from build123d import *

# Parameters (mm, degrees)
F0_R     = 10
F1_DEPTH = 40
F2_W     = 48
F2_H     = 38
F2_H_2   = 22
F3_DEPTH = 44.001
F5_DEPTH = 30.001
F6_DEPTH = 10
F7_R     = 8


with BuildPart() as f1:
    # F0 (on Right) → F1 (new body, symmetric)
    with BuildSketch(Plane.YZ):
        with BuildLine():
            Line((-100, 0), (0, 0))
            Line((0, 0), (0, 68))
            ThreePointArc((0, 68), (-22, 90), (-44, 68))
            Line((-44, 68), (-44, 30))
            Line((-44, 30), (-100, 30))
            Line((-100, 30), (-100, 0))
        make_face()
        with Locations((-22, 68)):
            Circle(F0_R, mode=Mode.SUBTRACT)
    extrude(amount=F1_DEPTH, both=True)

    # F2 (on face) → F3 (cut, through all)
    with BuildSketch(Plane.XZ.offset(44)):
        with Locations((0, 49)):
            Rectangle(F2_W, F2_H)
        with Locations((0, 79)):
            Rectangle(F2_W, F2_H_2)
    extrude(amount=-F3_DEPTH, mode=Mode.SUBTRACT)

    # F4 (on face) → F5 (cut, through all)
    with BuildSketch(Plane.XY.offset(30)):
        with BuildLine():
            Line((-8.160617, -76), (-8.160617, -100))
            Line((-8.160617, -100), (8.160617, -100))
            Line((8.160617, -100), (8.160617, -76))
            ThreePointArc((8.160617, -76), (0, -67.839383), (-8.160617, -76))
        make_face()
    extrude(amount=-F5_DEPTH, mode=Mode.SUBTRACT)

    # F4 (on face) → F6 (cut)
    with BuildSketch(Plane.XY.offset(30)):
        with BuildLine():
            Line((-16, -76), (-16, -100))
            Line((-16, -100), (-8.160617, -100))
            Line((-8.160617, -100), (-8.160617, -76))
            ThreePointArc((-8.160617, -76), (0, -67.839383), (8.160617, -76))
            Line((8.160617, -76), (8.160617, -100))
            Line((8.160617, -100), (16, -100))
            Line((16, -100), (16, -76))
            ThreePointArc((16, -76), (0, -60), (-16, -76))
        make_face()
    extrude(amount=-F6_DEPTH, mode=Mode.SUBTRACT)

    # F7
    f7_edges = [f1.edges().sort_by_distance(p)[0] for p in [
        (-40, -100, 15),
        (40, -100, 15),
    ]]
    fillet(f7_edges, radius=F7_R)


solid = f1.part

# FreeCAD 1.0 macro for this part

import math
import FreeCAD as App
import Part
import Sketcher

V = App.Vector


def edges_at(feature, points):
    """Names of the edges that pass closest to the given points."""
    edges = feature.Shape.Edges
    near = lambda p: min(range(len(edges)), key=lambda i: edges[i].distToShape(Part.Vertex(*p))[0])
    return sorted({f"Edge{near(p) + 1}" for p in points})

doc = App.newDocument("Part")
params = doc.addObject("Spreadsheet::Sheet", "Params")
for row, (alias, value) in enumerate([
    ("sketch1_diameter", "20 mm"),
    ("sketch1_radius", "22 mm"),
    ("sketch1_width", "100 mm"),
    ("sketch1_height", "68 mm"),
    ("sketch1_height2", "38 mm"),
    ("pad1_length", "80 mm"),
    ("sketch2_width", "48 mm"),
    ("sketch2_height", "60 mm"),
    ("sketch3_height", "24 mm"),
    ("sketch4_radius", "16 mm"),
    ("sketch4_height", "24 mm"),
    ("pocket3_length", "10 mm"),
    ("fillet_radius", "8 mm"),
], start=1):
    params.set(f"A{row}", alias)
    params.set(f"B{row}", "=" + value)
    params.setAlias(f"B{row}", alias)

body = doc.addObject("PartDesign::Body", "Body")

# Sketch on YZ plane
sketch1 = doc.addObject("Sketcher::SketchObject", "Sketch")
body.addObject(sketch1)
sketch1.AttachmentSupport = (doc.YZ_Plane, [""])
sketch1.MapMode = "FlatFace"
sketch1.addGeometry([
    Part.LineSegment(V(-100, 0, 0), V(0, 0, 0)),  # 0
    Part.LineSegment(V(0, 0, 0), V(0, 68, 0)),  # 1
    Part.ArcOfCircle(Part.Circle(V(-22, 68, 0), V(0, 0, 1), 22), math.radians(0), math.radians(180)),  # 2
    Part.LineSegment(V(-44, 68, 0), V(-44, 30, 0)),  # 3
    Part.LineSegment(V(-44, 30, 0), V(-100, 30, 0)),  # 4
    Part.LineSegment(V(-100, 30, 0), V(-100, 0, 0)),  # 5
    Part.Circle(V(-22, 68, 0), V(0, 0, 1), 10),  # 6
], False)
sketch1.addConstraint([
    Sketcher.Constraint("Coincident", 0, 2, 1, 1),
    Sketcher.Constraint("Tangent", 1, 2, 2, 1),
    Sketcher.Constraint("Tangent", 2, 2, 3, 1),
    Sketcher.Constraint("Coincident", 3, 2, 4, 1),
    Sketcher.Constraint("Coincident", 4, 2, 5, 1),
    Sketcher.Constraint("Coincident", 5, 2, 0, 1),
    Sketcher.Constraint("Horizontal", 0),
    Sketcher.Constraint("Vertical", 1),
    Sketcher.Constraint("Vertical", 3),
    Sketcher.Constraint("Horizontal", 4),
    Sketcher.Constraint("Vertical", 5),
    Sketcher.Constraint("Coincident", 0, 2, -1, 1),
    Sketcher.Constraint("Coincident", 6, 3, 2, 3),
    Sketcher.Constraint("Diameter", 6, 20.0),
    Sketcher.Constraint("Radius", 2, 22.0),
    Sketcher.Constraint("DistanceX", 0, 1, 0, 2, 100.0),
    Sketcher.Constraint("DistanceY", 1, 1, 1, 2, 68.0),
    Sketcher.Constraint("DistanceY", 3, 2, 3, 1, 38.0),
])
sketch1.setExpression("Constraints[13]", "Params.sketch1_diameter")
sketch1.setExpression("Constraints[14]", "Params.sketch1_radius")
sketch1.setExpression("Constraints[15]", "Params.sketch1_width")
sketch1.setExpression("Constraints[16]", "Params.sketch1_height")
sketch1.setExpression("Constraints[17]", "Params.sketch1_height2")
pad1 = doc.addObject("PartDesign::Pad", "Pad")
body.addObject(pad1)
pad1.Profile = sketch1
pad1.setExpression("Length", "Params.pad1_length")
pad1.Midplane = True

# Sketch on XZ plane
sketch2 = doc.addObject("Sketcher::SketchObject", "Sketch001")
body.addObject(sketch2)
sketch2.AttachmentSupport = (doc.XZ_Plane, [""])
sketch2.MapMode = "FlatFace"
sketch2.AttachmentOffset = App.Placement(V(0, 0, 44), App.Rotation())
sketch2.addGeometry([
    Part.LineSegment(V(-24, 30, 0), V(24, 30, 0)),
    Part.LineSegment(V(24, 30, 0), V(24, 90, 0)),
    Part.LineSegment(V(24, 90, 0), V(-24, 90, 0)),
    Part.LineSegment(V(-24, 90, 0), V(-24, 30, 0)),
], False)
sketch2.addConstraint([
    Sketcher.Constraint("Coincident", 0, 2, 1, 1),
    Sketcher.Constraint("Coincident", 1, 2, 2, 1),
    Sketcher.Constraint("Coincident", 2, 2, 3, 1),
    Sketcher.Constraint("Coincident", 3, 2, 0, 1),
    Sketcher.Constraint("Horizontal", 0),
    Sketcher.Constraint("Vertical", 1),
    Sketcher.Constraint("Horizontal", 2),
    Sketcher.Constraint("Vertical", 3),
    Sketcher.Constraint("DistanceX", 0, 1, 0, 2, 48.0),
    Sketcher.Constraint("DistanceY", 1, 1, 1, 2, 60.0),
    Sketcher.Constraint("DistanceX", -1, 1, 0, 2, 24.0),
    Sketcher.Constraint("DistanceY", -1, 1, 0, 2, 30.0),
])
sketch2.setExpression("Constraints[8]", "Params.sketch2_width")
sketch2.setExpression("Constraints[9]", "Params.sketch2_height")
pocket1 = doc.addObject("PartDesign::Pocket", "Pocket")
body.addObject(pocket1)
pocket1.Profile = sketch2
pocket1.Type = "ThroughAll"

# Sketch on XY plane
sketch3 = doc.addObject("Sketcher::SketchObject", "Sketch002")
body.addObject(sketch3)
sketch3.AttachmentSupport = (doc.XY_Plane, [""])
sketch3.MapMode = "FlatFace"
sketch3.AttachmentOffset = App.Placement(V(0, 0, 30), App.Rotation())
sketch3.addGeometry([
    Part.LineSegment(V(-8.160617, -76, 0), V(-8.160617, -100, 0)),
    Part.LineSegment(V(-8.160617, -100, 0), V(8.160617, -100, 0)),
    Part.LineSegment(V(8.160617, -100, 0), V(8.160617, -76, 0)),
    Part.ArcOfCircle(Part.Circle(V(0, -76, 0), V(0, 0, 1), 8.160617), math.radians(0), math.radians(180)),
], False)
sketch3.addConstraint([
    Sketcher.Constraint("Coincident", 0, 2, 1, 1),
    Sketcher.Constraint("Coincident", 1, 2, 2, 1),
    Sketcher.Constraint("Tangent", 2, 2, 3, 1),
    Sketcher.Constraint("Tangent", 3, 2, 0, 1),
    Sketcher.Constraint("Vertical", 0),
    Sketcher.Constraint("Horizontal", 1),
    Sketcher.Constraint("Vertical", 2),
    Sketcher.Constraint("PointOnObject", 3, 3, -2),
    Sketcher.Constraint("DistanceY", 0, 2, 0, 1, 24.0),
    Sketcher.Constraint("DistanceY", 3, 3, -1, 1, 76.0),
    Sketcher.Constraint("Radius", 3, 8.160617),
])
sketch3.setExpression("Constraints[8]", "Params.sketch3_height")
pocket2 = doc.addObject("PartDesign::Pocket", "Pocket001")
body.addObject(pocket2)
pocket2.Profile = sketch3
pocket2.Type = "ThroughAll"

# Sketch on XY plane
sketch4 = doc.addObject("Sketcher::SketchObject", "Sketch003")
body.addObject(sketch4)
sketch4.AttachmentSupport = (doc.XY_Plane, [""])
sketch4.MapMode = "FlatFace"
sketch4.AttachmentOffset = App.Placement(V(0, 0, 30), App.Rotation())
sketch4.addGeometry([
    Part.LineSegment(V(-16, -76, 0), V(-16, -100, 0)),  # 0
    Part.LineSegment(V(-16, -100, 0), V(-8.160617, -100, 0)),  # 1
    Part.LineSegment(V(-8.160617, -100, 0), V(-8.160617, -76, 0)),  # 2
    Part.ArcOfCircle(Part.Circle(V(0, -76, 0), V(0, 0, 1), 8.160617), math.radians(0), math.radians(180)),  # 3
    Part.LineSegment(V(8.160617, -76, 0), V(8.160617, -100, 0)),  # 4
    Part.LineSegment(V(8.160617, -100, 0), V(16, -100, 0)),  # 5
    Part.LineSegment(V(16, -100, 0), V(16, -76, 0)),  # 6
    Part.ArcOfCircle(Part.Circle(V(0, -76, 0), V(0, 0, 1), 16), math.radians(0), math.radians(180)),  # 7
], False)
sketch4.addConstraint([
    Sketcher.Constraint("Coincident", 0, 2, 1, 1),
    Sketcher.Constraint("Coincident", 1, 2, 2, 1),
    Sketcher.Constraint("Tangent", 2, 2, 3, 2),
    Sketcher.Constraint("Tangent", 3, 1, 4, 1),
    Sketcher.Constraint("Coincident", 4, 2, 5, 1),
    Sketcher.Constraint("Coincident", 5, 2, 6, 1),
    Sketcher.Constraint("Tangent", 6, 2, 7, 1),
    Sketcher.Constraint("Tangent", 7, 2, 0, 1),
    Sketcher.Constraint("Vertical", 0),
    Sketcher.Constraint("Horizontal", 1),
    Sketcher.Constraint("Vertical", 2),
    Sketcher.Constraint("Vertical", 4),
    Sketcher.Constraint("Horizontal", 5),
    Sketcher.Constraint("Vertical", 6),
    Sketcher.Constraint("Coincident", 7, 3, 3, 3),
    Sketcher.Constraint("Symmetric", 1, 2, 4, 2, -2),
    Sketcher.Constraint("Radius", 7, 16.0),
    Sketcher.Constraint("DistanceY", 0, 2, 0, 1, 24.0),
    Sketcher.Constraint("DistanceY", 3, 3, -1, 1, 76.0),
    Sketcher.Constraint("Radius", 3, 8.160617),
])
sketch4.setExpression("Constraints[16]", "Params.sketch4_radius")
sketch4.setExpression("Constraints[17]", "Params.sketch4_height")
pocket3 = doc.addObject("PartDesign::Pocket", "Pocket002")
body.addObject(pocket3)
pocket3.Profile = sketch4
pocket3.setExpression("Length", "Params.pocket3_length")
doc.recompute()

fillet = doc.addObject("PartDesign::Fillet", "Fillet")
body.addObject(fillet)
fillet.Base = (pocket3, edges_at(pocket3, [(-40, -100, 15), (40, -100, 15)]))
fillet.setExpression("Radius", "Params.fillet_radius")

doc.recompute()
